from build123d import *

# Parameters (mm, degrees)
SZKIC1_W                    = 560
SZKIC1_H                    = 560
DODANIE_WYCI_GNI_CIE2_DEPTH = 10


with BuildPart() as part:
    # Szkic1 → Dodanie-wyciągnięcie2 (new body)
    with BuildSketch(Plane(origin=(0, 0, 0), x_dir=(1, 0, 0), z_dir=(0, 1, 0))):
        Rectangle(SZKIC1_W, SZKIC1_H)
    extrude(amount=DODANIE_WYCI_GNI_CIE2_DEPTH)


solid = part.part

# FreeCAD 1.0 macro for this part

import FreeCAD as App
import Part
import Sketcher

V = App.Vector
Q = App.Units.Quantity


def add_polygon(sketch, points):
    """Adds a closed chain of lines whose ends are joined by coincident constraints."""
    first, n = sketch.GeometryCount, len(points)
    for a, b in zip(points, points[1:] + points[:1]):
        sketch.addGeometry(Part.LineSegment(App.Vector(*a, 0), App.Vector(*b, 0)), False)
    for i in range(n):
        sketch.addConstraint(Sketcher.Constraint("Coincident", first + i, 2, first + (i + 1) % n, 1))

doc = App.newDocument("Part")
body = doc.addObject("PartDesign::Body", "Body")

sketch1 = doc.addObject("Sketcher::SketchObject", "Sketch")
body.addObject(sketch1)
sketch1.AttachmentSupport = (doc.XZ_Plane, [""])
sketch1.MapMode = "FlatFace"
add_polygon(sketch1, [(-280, -280), (-280, 280), (280, 280), (280, -280)])
sketch1.addConstraint([
    Sketcher.Constraint("Vertical", 0),
    Sketcher.Constraint("Horizontal", 1),
    Sketcher.Constraint("Vertical", 2),
    Sketcher.Constraint("Horizontal", 3),
    Sketcher.Constraint("Symmetric", 0, 2, 2, 2, -1, 1),
    Sketcher.Constraint("Equal", 3, 0),
    Sketcher.Constraint("DistanceX", 1, 1, 1, 2, Q("560 mm")),
])
pad1 = doc.addObject("PartDesign::Pad", "Pad")
body.addObject(pad1)
pad1.Profile = sketch1
pad1.Length = 10
pad1.Reversed = True

doc.recompute()
